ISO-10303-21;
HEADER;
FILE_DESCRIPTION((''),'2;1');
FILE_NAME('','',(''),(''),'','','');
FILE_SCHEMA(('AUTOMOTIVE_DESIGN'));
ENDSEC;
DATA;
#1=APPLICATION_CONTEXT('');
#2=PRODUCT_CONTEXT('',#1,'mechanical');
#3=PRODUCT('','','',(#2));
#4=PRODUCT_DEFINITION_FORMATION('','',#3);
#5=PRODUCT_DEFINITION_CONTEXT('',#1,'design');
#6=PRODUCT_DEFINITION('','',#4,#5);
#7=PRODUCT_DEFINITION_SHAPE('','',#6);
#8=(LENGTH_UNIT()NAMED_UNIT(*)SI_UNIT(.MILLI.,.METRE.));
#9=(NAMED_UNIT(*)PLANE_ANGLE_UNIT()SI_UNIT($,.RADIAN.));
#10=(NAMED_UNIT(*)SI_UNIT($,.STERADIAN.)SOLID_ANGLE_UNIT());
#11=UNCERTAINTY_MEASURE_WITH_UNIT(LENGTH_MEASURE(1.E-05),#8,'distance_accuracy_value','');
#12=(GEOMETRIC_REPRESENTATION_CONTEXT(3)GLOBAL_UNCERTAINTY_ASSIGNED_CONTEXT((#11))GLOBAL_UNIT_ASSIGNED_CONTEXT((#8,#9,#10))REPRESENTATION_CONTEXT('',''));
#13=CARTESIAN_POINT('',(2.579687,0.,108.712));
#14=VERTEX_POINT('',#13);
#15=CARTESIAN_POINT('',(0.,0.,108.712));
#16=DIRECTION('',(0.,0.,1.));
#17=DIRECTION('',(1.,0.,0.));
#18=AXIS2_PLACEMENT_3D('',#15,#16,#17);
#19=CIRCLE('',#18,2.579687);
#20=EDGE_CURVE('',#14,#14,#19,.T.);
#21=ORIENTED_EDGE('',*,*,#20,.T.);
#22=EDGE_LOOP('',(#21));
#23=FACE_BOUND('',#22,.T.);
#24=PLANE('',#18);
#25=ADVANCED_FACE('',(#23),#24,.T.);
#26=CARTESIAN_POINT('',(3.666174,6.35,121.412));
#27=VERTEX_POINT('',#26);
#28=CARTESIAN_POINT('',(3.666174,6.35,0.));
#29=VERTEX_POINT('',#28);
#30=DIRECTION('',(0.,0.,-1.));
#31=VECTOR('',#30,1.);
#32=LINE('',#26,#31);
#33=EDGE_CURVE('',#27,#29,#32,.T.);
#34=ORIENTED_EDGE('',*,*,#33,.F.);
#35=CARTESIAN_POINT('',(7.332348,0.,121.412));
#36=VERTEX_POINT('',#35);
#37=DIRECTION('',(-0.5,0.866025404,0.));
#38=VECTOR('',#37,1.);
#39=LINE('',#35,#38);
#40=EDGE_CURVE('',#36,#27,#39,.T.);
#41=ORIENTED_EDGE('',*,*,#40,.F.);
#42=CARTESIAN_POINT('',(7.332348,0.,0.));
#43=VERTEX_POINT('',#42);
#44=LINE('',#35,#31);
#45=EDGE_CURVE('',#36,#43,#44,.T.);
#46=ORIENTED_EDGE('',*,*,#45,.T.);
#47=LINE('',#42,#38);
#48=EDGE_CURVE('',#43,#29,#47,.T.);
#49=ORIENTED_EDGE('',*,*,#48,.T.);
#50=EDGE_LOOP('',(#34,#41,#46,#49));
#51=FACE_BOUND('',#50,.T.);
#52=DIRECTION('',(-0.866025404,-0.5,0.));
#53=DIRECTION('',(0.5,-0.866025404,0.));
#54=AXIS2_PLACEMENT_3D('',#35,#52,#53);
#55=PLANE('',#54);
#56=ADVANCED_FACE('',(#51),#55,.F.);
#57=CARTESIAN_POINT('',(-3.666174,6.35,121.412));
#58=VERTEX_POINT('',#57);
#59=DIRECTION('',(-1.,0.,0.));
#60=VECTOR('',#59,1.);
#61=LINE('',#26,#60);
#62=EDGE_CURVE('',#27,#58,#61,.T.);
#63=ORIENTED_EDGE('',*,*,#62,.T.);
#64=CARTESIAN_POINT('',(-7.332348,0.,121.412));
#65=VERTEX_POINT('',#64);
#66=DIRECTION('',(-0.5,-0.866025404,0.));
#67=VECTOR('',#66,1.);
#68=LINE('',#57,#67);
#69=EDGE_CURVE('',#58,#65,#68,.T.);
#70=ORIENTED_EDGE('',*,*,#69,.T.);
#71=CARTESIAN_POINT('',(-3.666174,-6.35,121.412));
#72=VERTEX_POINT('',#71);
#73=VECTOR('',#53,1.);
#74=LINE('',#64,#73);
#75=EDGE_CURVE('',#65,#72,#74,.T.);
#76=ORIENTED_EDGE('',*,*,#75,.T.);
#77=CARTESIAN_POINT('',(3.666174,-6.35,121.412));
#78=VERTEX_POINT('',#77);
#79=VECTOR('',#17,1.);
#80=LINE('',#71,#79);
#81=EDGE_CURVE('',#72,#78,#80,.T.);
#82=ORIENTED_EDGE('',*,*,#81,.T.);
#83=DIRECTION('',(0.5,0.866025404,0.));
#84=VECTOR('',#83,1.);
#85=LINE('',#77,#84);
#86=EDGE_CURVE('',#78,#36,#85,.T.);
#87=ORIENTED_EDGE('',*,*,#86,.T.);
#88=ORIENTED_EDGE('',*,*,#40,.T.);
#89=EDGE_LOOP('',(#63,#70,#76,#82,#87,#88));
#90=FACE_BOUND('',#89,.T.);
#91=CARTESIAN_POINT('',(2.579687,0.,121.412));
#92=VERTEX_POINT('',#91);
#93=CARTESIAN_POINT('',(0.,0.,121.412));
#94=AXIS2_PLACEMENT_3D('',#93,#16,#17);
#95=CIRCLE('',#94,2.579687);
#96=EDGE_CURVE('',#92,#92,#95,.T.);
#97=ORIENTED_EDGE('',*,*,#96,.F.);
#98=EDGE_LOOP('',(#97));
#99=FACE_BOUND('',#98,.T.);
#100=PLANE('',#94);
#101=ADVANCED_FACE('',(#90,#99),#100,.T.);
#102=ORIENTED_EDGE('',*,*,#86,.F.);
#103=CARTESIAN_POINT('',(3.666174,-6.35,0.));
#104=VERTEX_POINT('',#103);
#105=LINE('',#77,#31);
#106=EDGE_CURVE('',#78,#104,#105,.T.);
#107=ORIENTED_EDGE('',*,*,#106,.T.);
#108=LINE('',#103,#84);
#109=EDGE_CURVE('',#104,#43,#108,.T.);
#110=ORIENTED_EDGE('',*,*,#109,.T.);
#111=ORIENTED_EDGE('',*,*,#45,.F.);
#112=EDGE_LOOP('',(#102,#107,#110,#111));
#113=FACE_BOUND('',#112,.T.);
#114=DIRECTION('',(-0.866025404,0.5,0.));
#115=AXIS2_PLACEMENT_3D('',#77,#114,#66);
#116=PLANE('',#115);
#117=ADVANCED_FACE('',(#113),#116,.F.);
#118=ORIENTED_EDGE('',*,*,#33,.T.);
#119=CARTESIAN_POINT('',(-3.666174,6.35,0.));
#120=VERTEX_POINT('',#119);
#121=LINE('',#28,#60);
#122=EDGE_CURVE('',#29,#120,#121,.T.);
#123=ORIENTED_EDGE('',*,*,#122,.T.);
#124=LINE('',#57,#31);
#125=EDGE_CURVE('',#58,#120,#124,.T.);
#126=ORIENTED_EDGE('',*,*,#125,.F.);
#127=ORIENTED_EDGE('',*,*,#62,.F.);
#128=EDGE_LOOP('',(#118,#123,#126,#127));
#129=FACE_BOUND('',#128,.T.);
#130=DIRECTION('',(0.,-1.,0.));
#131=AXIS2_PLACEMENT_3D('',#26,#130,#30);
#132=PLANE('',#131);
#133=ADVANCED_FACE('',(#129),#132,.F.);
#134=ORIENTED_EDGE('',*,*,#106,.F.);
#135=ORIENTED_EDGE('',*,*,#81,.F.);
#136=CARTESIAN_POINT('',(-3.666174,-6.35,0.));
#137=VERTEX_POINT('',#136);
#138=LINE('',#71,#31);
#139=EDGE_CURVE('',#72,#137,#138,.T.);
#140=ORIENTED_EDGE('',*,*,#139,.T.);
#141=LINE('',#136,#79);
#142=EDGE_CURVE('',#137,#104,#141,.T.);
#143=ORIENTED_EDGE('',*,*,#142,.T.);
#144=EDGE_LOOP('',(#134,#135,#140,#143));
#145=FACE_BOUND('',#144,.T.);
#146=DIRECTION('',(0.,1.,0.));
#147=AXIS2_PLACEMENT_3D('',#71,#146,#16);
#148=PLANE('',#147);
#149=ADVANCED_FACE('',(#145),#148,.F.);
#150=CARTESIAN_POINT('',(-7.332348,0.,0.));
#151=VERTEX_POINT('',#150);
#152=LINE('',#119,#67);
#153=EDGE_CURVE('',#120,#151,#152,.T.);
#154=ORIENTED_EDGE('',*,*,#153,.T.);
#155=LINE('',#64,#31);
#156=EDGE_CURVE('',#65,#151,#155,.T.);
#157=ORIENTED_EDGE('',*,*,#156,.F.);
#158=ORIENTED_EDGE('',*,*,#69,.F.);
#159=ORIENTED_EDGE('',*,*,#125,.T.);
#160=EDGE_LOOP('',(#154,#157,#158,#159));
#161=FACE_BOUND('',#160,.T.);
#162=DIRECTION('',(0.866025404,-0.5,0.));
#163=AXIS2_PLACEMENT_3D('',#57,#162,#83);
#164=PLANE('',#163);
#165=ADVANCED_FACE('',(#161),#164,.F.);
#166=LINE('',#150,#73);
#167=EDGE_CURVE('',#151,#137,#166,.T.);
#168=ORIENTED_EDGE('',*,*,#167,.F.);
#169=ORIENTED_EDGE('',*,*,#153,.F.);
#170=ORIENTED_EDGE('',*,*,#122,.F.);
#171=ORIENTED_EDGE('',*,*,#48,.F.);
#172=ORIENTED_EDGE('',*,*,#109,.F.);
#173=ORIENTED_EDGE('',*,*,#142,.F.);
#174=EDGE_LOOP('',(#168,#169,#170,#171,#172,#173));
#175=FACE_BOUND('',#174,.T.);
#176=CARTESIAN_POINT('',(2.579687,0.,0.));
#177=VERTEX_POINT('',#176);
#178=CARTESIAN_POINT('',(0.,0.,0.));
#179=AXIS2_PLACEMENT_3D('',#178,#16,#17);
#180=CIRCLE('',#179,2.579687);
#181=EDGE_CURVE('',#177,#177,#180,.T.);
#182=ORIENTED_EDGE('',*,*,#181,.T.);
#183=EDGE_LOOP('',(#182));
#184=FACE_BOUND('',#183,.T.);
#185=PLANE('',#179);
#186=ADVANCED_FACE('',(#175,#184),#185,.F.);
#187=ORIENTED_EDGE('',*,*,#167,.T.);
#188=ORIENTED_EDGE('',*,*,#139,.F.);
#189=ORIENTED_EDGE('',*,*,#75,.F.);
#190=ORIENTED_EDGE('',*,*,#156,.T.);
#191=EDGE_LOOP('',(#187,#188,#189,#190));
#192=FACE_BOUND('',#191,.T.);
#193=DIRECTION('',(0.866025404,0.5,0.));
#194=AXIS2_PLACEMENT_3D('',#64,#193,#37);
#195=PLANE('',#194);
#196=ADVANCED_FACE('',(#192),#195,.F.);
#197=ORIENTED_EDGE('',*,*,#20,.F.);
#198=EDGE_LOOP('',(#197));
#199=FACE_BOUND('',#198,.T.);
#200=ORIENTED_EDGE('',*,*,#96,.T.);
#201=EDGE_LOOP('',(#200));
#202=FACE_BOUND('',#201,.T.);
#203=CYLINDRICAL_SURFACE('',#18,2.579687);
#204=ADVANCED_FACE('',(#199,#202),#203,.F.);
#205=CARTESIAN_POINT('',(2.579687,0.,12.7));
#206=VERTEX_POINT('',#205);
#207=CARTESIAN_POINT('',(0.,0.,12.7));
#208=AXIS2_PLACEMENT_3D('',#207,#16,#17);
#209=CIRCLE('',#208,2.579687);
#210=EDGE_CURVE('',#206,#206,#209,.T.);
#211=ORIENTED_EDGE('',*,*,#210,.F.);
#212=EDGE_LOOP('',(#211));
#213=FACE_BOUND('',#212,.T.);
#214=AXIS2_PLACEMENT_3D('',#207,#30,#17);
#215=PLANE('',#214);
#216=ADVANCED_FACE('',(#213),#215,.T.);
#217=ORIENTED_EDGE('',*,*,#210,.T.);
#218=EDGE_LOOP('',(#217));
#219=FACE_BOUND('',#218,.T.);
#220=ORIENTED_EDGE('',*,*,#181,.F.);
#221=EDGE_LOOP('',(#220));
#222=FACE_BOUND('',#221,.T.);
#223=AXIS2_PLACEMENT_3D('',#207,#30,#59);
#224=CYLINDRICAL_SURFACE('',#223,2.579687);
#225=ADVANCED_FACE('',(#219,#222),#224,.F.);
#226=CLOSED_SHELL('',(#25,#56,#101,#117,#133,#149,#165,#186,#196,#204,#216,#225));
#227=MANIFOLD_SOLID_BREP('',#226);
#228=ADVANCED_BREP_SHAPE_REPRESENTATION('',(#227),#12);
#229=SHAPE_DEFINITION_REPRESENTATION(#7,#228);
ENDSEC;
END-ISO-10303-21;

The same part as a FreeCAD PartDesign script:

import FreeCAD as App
import Part
import Sketcher
Q = App.Units.Quantity

doc = App.newDocument("Part")
body = doc.addObject("PartDesign::Body", "Body")

# Sketch on XY plane
sketch1 = body.newObject("Sketcher::SketchObject", "Sketch")
sketch1.AttachmentSupport = (doc.getObject("XY_Plane"), [""])
sketch1.MapMode = "FlatFace"
sketch1.addGeometry(Part.LineSegment(App.Vector(7.332348, 0, 0), App.Vector(3.666174, 6.35, 0)), False)
sketch1.addGeometry(Part.LineSegment(App.Vector(3.666174, 6.35, 0), App.Vector(-3.666174, 6.35, 0)), False)
sketch1.addGeometry(Part.LineSegment(App.Vector(-3.666174, 6.35, 0), App.Vector(-7.332348, 0, 0)), False)
sketch1.addGeometry(Part.LineSegment(App.Vector(-7.332348, 0, 0), App.Vector(-3.666174, -6.35, 0)), False)
sketch1.addGeometry(Part.LineSegment(App.Vector(-3.666174, -6.35, 0), App.Vector(3.666174, -6.35, 0)), False)
sketch1.addGeometry(Part.LineSegment(App.Vector(3.666174, -6.35, 0), App.Vector(7.332348, 0, 0)), False)
sketch1.addConstraint(Sketcher.Constraint("Coincident", 0, 2, 1, 1))
sketch1.addConstraint(Sketcher.Constraint("Coincident", 1, 2, 2, 1))
sketch1.addConstraint(Sketcher.Constraint("Coincident", 2, 2, 3, 1))
sketch1.addConstraint(Sketcher.Constraint("Coincident", 3, 2, 4, 1))
sketch1.addConstraint(Sketcher.Constraint("Coincident", 4, 2, 5, 1))
sketch1.addConstraint(Sketcher.Constraint("Coincident", 5, 2, 0, 1))
sketch1.addConstraint(Sketcher.Constraint("Horizontal", 1))
sketch1.addConstraint(Sketcher.Constraint("Horizontal", 4))
sketch1.addConstraint(Sketcher.Constraint("Symmetric", 0, 2, 3, 2, -1, 1))
sketch1.addConstraint(Sketcher.Constraint("Symmetric", 2, 2, 5, 2, -1, 1))
sketch1.addConstraint(Sketcher.Constraint("PointOnObject", 2, 2, -1))
sketch1.addConstraint(Sketcher.Constraint("Parallel", 2, 5))
sketch1.addConstraint(Sketcher.Constraint("Vertical", 1, 2, 3, 2))
sketch1.addConstraint(Sketcher.Constraint("Angle", 0, Q("120 deg")))
sketch1.addConstraint(Sketcher.Constraint("DistanceY", 3, 2, 1, 2, Q("0.5 in")))
sketch1.addConstraint(Sketcher.Constraint("DistanceX", 1, 2, 1, 1, Q("7.332348 mm")))
pad1 = body.newObject("PartDesign::Pad", "Pad")
pad1.Profile = sketch1
pad1.Length = Q("4.78 in")

# Sketch on XY plane
sketch2 = body.newObject("Sketcher::SketchObject", "Sketch001")
sketch2.AttachmentSupport = (doc.getObject("XY_Plane"), [""])
sketch2.MapMode = "FlatFace"
sketch2.AttachmentOffset = App.Placement(App.Vector(0, 0, 4.78 * 25.4), App.Rotation())
sketch2.addGeometry(Part.Circle(App.Vector(0, 0, 0), App.Vector(0, 0, 1), 2.579687), False)
sketch2.addConstraint(Sketcher.Constraint("Coincident", 0, 3, -1, 1))
sketch2.addConstraint(Sketcher.Constraint("Diameter", 0, Q("0.203125 in")))
pocket1 = body.newObject("PartDesign::Pocket", "Pocket")
pocket1.Profile = sketch2
pocket1.Length = Q("0.5 in")
doc.recompute()

datumplane = body.newObject("PartDesign::Plane", "DatumPlane")
datumplane.AttachmentSupport = (doc.getObject("XY_Plane"), [""])
datumplane.MapMode = "FlatFace"
datumplane.AttachmentOffset = App.Placement(App.Vector(0, 0, 2.39 * 25.4), App.Rotation())
mirrored = body.newObject("PartDesign::Mirrored", "Mirrored")
mirrored.Originals = [pocket1]
mirrored.MirrorPlane = (datumplane, [""])
body.Tip = mirrored

doc.recompute()
